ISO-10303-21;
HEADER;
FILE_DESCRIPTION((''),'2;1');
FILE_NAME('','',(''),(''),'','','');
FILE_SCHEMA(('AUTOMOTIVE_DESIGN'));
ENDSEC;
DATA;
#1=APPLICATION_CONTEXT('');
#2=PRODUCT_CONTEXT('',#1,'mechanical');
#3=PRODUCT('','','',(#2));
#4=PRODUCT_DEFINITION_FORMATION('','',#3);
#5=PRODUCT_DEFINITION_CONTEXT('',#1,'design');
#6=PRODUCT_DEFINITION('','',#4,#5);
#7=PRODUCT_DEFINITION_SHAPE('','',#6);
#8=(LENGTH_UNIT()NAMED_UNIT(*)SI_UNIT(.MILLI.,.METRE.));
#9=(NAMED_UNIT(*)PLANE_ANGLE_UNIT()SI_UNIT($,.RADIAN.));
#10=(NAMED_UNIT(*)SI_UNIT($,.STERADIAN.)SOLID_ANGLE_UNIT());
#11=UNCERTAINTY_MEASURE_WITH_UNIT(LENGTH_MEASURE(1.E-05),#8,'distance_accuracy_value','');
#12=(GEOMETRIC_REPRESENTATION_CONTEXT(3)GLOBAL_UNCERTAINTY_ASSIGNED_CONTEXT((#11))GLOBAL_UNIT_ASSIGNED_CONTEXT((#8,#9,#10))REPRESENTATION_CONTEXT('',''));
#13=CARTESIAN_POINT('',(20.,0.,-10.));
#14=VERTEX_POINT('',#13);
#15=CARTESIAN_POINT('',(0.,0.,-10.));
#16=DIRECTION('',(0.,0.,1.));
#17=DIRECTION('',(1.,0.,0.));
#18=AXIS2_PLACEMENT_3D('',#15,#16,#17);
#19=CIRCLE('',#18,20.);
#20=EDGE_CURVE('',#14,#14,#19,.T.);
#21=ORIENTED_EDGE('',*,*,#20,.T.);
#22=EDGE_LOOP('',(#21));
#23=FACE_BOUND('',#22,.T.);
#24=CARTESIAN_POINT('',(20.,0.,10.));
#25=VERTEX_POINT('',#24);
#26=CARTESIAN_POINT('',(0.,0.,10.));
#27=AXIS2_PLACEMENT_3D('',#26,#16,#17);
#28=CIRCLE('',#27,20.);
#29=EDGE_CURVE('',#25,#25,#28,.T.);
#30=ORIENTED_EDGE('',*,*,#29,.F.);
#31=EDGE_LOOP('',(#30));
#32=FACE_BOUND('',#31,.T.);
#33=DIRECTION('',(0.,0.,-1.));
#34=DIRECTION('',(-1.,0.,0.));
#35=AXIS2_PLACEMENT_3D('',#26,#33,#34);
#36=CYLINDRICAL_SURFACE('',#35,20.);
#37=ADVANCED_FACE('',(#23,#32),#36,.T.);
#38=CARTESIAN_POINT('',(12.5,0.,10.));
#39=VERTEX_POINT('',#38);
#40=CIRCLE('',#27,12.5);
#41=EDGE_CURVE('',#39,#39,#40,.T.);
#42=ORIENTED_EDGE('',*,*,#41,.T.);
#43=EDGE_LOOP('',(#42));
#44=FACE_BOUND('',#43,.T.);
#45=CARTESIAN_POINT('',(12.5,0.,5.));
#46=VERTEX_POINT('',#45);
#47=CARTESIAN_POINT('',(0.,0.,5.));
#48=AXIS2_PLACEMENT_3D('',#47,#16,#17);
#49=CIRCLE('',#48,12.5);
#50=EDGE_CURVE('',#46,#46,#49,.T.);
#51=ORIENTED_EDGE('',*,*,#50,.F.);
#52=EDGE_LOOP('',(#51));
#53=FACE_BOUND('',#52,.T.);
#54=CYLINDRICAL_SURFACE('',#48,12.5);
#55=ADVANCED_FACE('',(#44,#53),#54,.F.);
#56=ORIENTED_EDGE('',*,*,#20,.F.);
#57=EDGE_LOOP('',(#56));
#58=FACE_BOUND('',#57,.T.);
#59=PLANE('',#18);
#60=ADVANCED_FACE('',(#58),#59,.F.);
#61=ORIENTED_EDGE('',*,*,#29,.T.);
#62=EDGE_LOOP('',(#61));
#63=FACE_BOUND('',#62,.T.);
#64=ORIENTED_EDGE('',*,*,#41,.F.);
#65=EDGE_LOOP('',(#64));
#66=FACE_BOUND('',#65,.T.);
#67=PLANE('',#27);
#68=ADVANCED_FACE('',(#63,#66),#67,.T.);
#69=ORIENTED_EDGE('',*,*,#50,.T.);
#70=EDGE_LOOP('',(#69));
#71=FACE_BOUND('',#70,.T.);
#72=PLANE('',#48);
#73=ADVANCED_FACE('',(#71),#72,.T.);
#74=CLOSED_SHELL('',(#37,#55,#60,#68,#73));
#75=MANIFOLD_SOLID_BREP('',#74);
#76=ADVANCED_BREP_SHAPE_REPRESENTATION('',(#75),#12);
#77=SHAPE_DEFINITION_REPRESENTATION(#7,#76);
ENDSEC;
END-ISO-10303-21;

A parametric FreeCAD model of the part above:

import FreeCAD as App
import Part
import Sketcher

V = App.Vector

doc = App.newDocument("Part")
body = doc.addObject("PartDesign::Body", "Body")

sketch1 = body.newObject("Sketcher::SketchObject", "Sketch")
sketch1.AttachmentSupport = (doc.getObject("XY_Plane"), [""])
sketch1.MapMode = "FlatFace"
sketch1.addGeometry(Part.Circle(V(0, 0, 0), V(0, 0, 1), 20), False)
sketch1.addConstraint([
    Sketcher.Constraint("Coincident", 0, 3, -1, 1),
    Sketcher.Constraint("Diameter", 0, 40.0),
])
pad1 = body.newObject("PartDesign::Pad", "Pad")
pad1.Profile = sketch1
pad1.Length = 20
pad1.Midplane = True

sketch2 = body.newObject("Sketcher::SketchObject", "Sketch001")
sketch2.AttachmentSupport = (doc.getObject("XY_Plane"), [""])
sketch2.MapMode = "FlatFace"
sketch2.AttachmentOffset = App.Placement(V(0, 0, 10), App.Rotation())
sketch2.addGeometry(Part.Circle(V(0, 0, 0), V(0, 0, 1), 12), False)
sketch2.addConstraint([
    Sketcher.Constraint("Coincident", 0, 3, -1, 1),
    Sketcher.Constraint("Diameter", 0, 25.0),
])
pocket1 = body.newObject("PartDesign::Pocket", "Pocket")
pocket1.Profile = sketch2
pocket1.Length = 5

doc.recompute()
